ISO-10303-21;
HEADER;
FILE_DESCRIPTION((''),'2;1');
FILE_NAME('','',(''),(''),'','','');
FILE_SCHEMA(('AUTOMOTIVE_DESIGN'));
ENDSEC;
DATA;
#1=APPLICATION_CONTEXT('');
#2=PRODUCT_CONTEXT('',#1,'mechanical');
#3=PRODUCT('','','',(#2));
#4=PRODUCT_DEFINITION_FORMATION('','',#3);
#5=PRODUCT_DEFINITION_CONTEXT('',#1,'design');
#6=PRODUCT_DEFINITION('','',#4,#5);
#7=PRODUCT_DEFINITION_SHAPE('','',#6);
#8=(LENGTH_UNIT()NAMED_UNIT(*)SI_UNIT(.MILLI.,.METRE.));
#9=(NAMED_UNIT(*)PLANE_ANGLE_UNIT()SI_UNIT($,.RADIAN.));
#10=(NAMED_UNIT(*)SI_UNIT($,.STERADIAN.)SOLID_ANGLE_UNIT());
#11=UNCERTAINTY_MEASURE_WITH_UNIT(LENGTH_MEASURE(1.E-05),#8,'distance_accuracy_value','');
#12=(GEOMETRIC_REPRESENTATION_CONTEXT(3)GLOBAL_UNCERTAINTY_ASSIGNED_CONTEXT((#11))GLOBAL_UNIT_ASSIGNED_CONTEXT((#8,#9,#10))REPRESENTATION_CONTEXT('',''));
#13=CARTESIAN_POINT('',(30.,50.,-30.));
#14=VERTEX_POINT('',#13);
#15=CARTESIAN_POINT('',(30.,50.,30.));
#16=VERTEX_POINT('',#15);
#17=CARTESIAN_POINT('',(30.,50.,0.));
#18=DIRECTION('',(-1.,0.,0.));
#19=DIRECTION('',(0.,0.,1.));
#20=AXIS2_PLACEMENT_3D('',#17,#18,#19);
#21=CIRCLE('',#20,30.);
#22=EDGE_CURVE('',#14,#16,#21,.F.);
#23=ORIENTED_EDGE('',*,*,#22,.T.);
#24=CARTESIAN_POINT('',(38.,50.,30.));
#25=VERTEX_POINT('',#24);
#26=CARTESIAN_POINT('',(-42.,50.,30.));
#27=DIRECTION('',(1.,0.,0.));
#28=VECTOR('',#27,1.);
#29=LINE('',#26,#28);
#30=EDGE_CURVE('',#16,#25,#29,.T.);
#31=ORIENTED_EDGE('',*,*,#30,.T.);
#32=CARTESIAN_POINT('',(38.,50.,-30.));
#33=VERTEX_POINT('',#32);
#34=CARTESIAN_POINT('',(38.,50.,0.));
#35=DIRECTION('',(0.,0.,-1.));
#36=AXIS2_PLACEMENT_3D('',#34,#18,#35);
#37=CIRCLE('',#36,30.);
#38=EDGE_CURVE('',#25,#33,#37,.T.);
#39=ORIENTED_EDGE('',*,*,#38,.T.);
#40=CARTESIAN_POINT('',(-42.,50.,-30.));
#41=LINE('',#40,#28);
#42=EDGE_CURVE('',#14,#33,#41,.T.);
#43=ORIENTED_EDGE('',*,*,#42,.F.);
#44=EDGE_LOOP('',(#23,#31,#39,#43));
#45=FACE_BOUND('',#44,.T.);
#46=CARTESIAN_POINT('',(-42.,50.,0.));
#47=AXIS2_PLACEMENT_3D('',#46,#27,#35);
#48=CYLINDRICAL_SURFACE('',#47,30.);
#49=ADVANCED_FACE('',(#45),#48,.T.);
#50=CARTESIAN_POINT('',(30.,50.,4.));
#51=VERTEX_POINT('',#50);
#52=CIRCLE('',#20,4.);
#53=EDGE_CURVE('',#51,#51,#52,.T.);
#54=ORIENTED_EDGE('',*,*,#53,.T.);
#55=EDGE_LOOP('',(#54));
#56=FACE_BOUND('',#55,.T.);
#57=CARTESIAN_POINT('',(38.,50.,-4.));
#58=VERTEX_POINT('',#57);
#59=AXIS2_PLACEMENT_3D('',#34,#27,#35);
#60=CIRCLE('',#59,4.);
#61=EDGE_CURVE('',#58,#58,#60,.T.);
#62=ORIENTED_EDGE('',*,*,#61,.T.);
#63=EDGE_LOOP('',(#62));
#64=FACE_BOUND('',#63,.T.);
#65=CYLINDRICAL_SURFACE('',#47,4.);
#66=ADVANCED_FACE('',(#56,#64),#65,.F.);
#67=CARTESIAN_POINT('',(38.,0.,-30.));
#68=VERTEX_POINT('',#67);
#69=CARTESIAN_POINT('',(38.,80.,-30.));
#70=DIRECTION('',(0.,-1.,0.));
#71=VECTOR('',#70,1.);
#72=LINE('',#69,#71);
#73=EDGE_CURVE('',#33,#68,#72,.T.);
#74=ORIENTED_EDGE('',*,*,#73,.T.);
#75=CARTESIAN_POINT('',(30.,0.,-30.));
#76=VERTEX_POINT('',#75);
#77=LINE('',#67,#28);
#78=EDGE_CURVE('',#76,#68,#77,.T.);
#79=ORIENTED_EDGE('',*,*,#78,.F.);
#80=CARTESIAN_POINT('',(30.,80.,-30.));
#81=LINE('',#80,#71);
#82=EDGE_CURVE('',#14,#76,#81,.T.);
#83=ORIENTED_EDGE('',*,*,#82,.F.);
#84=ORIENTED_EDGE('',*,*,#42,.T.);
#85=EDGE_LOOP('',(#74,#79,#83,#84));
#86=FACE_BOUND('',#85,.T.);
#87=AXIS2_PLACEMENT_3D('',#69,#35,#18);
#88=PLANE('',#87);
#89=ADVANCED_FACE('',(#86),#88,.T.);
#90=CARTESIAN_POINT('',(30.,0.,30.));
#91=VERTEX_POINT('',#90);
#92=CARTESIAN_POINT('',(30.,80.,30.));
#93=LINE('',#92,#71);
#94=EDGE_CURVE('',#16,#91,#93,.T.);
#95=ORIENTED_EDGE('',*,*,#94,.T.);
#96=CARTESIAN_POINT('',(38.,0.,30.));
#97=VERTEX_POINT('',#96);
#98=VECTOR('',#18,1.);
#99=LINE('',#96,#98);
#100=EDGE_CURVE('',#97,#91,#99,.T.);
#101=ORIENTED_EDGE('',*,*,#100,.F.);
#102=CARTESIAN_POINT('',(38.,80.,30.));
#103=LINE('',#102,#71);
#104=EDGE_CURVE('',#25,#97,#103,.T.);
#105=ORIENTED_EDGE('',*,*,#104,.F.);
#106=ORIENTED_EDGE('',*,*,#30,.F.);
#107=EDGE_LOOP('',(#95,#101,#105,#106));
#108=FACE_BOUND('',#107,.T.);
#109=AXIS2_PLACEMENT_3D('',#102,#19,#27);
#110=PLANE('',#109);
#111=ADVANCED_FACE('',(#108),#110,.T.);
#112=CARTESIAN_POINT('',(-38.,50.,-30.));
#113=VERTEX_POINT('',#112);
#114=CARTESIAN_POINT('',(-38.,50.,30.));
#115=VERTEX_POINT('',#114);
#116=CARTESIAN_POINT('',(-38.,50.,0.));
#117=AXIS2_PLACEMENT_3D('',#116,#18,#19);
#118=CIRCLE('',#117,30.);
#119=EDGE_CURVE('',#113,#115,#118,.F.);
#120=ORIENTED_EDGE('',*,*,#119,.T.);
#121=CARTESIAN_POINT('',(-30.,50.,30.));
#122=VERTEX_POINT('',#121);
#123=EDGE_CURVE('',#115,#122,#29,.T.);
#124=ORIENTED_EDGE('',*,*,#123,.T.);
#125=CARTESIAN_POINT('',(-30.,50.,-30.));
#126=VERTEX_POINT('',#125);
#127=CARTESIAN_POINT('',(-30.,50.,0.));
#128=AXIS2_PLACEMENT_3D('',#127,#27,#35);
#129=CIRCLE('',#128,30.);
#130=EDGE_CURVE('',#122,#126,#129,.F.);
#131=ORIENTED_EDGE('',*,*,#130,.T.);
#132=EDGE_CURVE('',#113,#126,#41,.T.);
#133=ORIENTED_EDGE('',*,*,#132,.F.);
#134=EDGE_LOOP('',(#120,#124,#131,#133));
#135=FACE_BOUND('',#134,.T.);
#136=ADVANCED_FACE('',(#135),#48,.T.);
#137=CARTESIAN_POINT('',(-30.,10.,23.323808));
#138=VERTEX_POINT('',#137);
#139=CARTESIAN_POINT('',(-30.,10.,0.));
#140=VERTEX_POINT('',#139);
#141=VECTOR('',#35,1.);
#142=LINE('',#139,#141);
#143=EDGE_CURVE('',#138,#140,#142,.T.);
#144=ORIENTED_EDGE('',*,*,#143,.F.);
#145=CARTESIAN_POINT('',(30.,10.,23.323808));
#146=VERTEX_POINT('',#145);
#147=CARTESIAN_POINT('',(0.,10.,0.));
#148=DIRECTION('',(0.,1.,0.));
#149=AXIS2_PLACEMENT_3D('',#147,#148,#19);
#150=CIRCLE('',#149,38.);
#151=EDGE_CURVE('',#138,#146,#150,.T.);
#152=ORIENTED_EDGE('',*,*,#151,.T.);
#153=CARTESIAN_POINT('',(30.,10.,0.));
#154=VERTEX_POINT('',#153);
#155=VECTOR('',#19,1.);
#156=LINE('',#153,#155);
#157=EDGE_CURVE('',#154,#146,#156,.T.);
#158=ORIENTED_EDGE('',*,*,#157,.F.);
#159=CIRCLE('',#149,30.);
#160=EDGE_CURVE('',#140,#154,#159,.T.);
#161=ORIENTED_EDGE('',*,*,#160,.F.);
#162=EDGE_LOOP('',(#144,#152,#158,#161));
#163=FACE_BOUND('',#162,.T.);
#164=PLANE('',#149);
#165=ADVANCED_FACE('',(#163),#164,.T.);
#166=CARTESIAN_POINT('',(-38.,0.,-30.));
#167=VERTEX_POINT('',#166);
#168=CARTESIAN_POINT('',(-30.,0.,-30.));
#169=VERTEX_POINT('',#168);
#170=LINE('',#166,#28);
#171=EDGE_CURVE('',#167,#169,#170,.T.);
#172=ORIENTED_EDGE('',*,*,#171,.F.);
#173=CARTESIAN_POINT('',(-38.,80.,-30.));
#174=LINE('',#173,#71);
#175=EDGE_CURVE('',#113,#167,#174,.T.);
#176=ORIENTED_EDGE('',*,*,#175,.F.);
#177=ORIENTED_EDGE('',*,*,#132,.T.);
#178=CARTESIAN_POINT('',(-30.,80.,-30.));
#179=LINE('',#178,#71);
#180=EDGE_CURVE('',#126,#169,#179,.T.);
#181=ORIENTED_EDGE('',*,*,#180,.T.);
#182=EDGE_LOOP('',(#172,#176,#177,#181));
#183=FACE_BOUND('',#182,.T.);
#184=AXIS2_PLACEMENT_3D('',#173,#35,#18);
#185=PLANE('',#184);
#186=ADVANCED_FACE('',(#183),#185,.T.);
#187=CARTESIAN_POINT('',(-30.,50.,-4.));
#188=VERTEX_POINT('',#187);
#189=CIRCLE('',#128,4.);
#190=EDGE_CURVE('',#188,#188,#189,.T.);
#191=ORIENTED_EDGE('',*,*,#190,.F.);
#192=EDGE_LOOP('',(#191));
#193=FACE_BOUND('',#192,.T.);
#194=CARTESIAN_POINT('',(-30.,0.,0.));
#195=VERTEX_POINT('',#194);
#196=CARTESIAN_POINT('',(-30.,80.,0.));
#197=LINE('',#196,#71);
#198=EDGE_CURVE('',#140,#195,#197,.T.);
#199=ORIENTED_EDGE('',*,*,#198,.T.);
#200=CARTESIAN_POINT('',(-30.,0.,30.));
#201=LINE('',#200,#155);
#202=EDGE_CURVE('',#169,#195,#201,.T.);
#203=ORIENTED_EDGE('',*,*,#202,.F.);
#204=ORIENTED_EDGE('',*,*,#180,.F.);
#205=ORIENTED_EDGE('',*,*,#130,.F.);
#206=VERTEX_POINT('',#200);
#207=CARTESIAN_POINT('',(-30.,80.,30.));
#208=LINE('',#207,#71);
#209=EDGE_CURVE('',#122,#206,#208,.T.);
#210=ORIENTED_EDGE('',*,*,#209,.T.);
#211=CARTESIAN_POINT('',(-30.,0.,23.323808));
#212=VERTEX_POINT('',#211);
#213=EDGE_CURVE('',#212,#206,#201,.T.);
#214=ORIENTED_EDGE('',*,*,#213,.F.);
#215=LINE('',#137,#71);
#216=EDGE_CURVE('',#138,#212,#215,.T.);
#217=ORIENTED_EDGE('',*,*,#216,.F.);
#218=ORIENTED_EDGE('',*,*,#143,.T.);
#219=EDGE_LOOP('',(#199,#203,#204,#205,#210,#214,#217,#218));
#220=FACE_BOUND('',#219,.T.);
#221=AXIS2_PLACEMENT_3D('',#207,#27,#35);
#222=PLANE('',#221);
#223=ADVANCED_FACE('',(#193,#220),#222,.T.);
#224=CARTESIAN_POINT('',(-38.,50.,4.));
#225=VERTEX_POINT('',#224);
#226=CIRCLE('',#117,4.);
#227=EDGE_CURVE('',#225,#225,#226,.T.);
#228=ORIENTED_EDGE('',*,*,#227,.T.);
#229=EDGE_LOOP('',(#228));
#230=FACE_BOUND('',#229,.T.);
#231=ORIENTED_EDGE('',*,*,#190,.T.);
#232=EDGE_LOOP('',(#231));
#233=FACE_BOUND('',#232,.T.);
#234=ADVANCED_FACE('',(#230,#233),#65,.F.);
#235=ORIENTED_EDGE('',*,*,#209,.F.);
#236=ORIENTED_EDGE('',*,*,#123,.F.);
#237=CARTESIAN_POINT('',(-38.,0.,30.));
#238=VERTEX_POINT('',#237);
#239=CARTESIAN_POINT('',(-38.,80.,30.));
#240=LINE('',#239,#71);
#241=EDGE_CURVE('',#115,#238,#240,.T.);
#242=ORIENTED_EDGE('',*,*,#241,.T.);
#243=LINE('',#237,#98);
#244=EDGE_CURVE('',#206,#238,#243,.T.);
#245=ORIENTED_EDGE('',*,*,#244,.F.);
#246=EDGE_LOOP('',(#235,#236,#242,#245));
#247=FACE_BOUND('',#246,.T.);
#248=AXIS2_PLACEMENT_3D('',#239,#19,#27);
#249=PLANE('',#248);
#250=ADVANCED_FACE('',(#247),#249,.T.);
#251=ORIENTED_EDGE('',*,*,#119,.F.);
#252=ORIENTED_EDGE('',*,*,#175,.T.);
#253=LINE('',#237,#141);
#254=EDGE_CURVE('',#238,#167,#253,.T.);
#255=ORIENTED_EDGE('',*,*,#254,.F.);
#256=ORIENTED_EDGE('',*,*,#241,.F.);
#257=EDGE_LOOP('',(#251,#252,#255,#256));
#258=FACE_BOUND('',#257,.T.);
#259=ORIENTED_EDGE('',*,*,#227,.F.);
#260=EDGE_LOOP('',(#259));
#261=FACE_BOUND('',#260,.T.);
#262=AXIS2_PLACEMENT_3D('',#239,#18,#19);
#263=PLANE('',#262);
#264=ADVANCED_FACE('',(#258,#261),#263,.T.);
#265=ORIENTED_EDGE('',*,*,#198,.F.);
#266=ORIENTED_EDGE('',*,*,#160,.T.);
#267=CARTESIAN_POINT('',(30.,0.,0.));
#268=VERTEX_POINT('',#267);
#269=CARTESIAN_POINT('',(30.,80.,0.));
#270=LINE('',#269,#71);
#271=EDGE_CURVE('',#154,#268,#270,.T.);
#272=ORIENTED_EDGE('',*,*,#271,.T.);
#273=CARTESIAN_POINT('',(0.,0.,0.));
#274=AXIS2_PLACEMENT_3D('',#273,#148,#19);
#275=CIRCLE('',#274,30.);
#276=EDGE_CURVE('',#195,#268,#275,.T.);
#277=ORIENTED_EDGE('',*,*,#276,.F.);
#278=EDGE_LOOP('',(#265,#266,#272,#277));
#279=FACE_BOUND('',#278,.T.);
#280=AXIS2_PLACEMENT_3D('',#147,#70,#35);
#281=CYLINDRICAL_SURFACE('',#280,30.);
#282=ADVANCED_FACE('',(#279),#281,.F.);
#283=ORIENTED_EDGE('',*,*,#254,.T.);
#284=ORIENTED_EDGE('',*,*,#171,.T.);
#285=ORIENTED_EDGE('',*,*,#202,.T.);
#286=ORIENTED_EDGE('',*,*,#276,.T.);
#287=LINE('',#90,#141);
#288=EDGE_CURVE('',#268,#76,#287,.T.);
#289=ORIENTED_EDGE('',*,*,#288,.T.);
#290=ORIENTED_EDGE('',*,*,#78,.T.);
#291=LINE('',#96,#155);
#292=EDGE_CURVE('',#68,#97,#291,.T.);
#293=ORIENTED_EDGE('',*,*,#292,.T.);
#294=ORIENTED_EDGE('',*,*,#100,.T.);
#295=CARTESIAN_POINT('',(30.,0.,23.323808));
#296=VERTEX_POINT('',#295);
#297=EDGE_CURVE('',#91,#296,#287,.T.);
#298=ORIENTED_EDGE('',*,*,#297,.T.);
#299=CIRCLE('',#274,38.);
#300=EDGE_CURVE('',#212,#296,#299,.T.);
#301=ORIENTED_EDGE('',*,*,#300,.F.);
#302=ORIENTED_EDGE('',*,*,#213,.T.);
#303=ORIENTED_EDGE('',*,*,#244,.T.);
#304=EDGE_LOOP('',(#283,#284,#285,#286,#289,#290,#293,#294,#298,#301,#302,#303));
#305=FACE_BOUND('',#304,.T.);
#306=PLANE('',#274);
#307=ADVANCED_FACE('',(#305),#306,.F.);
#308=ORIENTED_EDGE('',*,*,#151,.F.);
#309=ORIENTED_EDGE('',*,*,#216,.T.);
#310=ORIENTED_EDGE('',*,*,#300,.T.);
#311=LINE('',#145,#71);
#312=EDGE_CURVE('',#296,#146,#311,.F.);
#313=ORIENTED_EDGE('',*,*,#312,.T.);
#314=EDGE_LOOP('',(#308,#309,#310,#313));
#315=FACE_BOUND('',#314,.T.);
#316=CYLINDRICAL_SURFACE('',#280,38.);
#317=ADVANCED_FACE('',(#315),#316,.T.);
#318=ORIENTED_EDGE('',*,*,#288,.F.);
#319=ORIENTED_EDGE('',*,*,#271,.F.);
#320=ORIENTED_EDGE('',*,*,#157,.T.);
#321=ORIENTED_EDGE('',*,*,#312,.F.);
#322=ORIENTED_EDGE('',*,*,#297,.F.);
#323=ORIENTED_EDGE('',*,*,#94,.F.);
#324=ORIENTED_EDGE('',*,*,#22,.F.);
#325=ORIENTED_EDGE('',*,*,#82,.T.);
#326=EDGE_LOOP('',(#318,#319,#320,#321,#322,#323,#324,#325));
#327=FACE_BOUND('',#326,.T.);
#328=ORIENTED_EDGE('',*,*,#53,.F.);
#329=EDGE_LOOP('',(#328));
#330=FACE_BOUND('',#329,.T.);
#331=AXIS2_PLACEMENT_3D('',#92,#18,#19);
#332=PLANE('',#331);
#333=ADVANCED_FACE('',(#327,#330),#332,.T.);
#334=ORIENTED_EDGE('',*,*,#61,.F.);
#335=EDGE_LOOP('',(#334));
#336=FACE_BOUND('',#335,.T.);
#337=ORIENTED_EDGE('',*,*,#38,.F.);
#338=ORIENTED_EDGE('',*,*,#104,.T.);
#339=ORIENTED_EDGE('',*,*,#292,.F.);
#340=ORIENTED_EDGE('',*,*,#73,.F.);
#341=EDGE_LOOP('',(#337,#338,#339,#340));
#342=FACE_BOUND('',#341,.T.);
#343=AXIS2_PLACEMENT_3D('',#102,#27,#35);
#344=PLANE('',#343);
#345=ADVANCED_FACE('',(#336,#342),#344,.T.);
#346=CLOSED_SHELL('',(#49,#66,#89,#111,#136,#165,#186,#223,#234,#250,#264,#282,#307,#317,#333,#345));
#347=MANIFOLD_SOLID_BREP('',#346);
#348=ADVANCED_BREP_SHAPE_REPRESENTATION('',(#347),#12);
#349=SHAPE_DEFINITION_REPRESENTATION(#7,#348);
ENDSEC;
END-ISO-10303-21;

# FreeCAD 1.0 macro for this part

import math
import FreeCAD as App
import Part
import Sketcher
Q = App.Units.Quantity

doc = App.newDocument("Part")
body = doc.addObject("PartDesign::Body", "Body")

# Sketch on XZ plane
sketch1 = body.newObject("Sketcher::SketchObject", "Sketch")
sketch1.AttachmentSupport = (doc.getObject("XZ_Plane"), [""])
sketch1.MapMode = "FlatFace"
sketch1.addGeometry(Part.Circle(App.Vector(0, 0, 0), App.Vector(0, 0, 1), 38), False)
sketch1.addGeometry(Part.Circle(App.Vector(0, 0, 0), App.Vector(0, 0, 1), 30), False)
sketch1.addConstraint(Sketcher.Constraint("Coincident", 0, 3, -1, 1))
sketch1.addConstraint(Sketcher.Constraint("Coincident", 1, 3, -1, 1))
sketch1.addConstraint(Sketcher.Constraint("Diameter", 0, Q("76 mm")))
sketch1.addConstraint(Sketcher.Constraint("Diameter", 1, Q("60 mm")))
pad1 = body.newObject("PartDesign::Pad", "Pad")
pad1.Profile = sketch1
pad1.Length = 10
pad1.Reversed = True

# Sketch on XZ plane
sketch2 = body.newObject("Sketcher::SketchObject", "Sketch001")
sketch2.AttachmentSupport = (doc.getObject("XZ_Plane"), [""])
sketch2.MapMode = "FlatFace"
sketch2.addGeometry(Part.LineSegment(App.Vector(-38, 30, 0), App.Vector(-38, -30, 0)), False)
sketch2.addGeometry(Part.LineSegment(App.Vector(-38, -30, 0), App.Vector(-30, -30, 0)), False)
sketch2.addGeometry(Part.LineSegment(App.Vector(-30, -30, 0), App.Vector(-30, 30, 0)), False)
sketch2.addGeometry(Part.LineSegment(App.Vector(-30, 30, 0), App.Vector(-38, 30, 0)), False)
sketch2.addGeometry(Part.LineSegment(App.Vector(30, 30, 0), App.Vector(30, -30, 0)), False)
sketch2.addGeometry(Part.LineSegment(App.Vector(30, -30, 0), App.Vector(38, -30, 0)), False)
sketch2.addGeometry(Part.LineSegment(App.Vector(38, -30, 0), App.Vector(38, 30, 0)), False)
sketch2.addGeometry(Part.LineSegment(App.Vector(38, 30, 0), App.Vector(30, 30, 0)), False)
sketch2.addConstraint(Sketcher.Constraint("Coincident", 0, 2, 1, 1))
sketch2.addConstraint(Sketcher.Constraint("Coincident", 1, 2, 2, 1))
sketch2.addConstraint(Sketcher.Constraint("Coincident", 2, 2, 3, 1))
sketch2.addConstraint(Sketcher.Constraint("Coincident", 3, 2, 0, 1))
sketch2.addConstraint(Sketcher.Constraint("Coincident", 4, 2, 5, 1))
sketch2.addConstraint(Sketcher.Constraint("Coincident", 5, 2, 6, 1))
sketch2.addConstraint(Sketcher.Constraint("Coincident", 6, 2, 7, 1))
sketch2.addConstraint(Sketcher.Constraint("Coincident", 7, 2, 4, 1))
sketch2.addConstraint(Sketcher.Constraint("Vertical", 0))
sketch2.addConstraint(Sketcher.Constraint("Horizontal", 1))
sketch2.addConstraint(Sketcher.Constraint("Vertical", 2))
sketch2.addConstraint(Sketcher.Constraint("Horizontal", 3))
sketch2.addConstraint(Sketcher.Constraint("Vertical", 4))
sketch2.addConstraint(Sketcher.Constraint("Horizontal", 5))
sketch2.addConstraint(Sketcher.Constraint("Vertical", 6))
sketch2.addConstraint(Sketcher.Constraint("Horizontal", 7))
sketch2.addConstraint(Sketcher.Constraint("Symmetric", 2, 2, 4, 2, -1, 1))
sketch2.addConstraint(Sketcher.Constraint("Symmetric", 0, 2, 6, 2, -1, 1))
sketch2.addConstraint(Sketcher.Constraint("Horizontal", 1, 2, 4, 2))
sketch2.addConstraint(Sketcher.Constraint("DistanceX", 1, 1, 1, 2, Q("8 mm")))
sketch2.addConstraint(Sketcher.Constraint("DistanceY", 0, 2, 0, 1, Q("60 mm")))
sketch2.addConstraint(Sketcher.Constraint("DistanceX", 0, 2, -1, 1, Q("38 mm")))
pad2 = body.newObject("PartDesign::Pad", "Pad001")
pad2.Profile = sketch2
pad2.Length = 80
pad2.Reversed = True

# Sketch on YZ plane
sketch3 = body.newObject("Sketcher::SketchObject", "Sketch002")
sketch3.AttachmentSupport = (doc.getObject("YZ_Plane"), [""])
sketch3.MapMode = "FlatFace"
sketch3.AttachmentOffset = App.Placement(App.Vector(0, 0, 38), App.Rotation())
sketch3.addGeometry(Part.Circle(App.Vector(50, 0, 0), App.Vector(0, 0, 1), 4), False)
sketch3.addGeometry(Part.LineSegment(App.Vector(88, 30, 0), App.Vector(50, 30, 0)), False)
sketch3.addGeometry(Part.ArcOfCircle(Part.Circle(App.Vector(50, 0, 0), App.Vector(0, 0, 1), 30), math.radians(-90), math.radians(90)), False)
sketch3.addGeometry(Part.LineSegment(App.Vector(50, -30, 0), App.Vector(88, -30, 0)), False)
sketch3.addGeometry(Part.LineSegment(App.Vector(88, -30, 0), App.Vector(88, 30, 0)), False)
sketch3.addConstraint(Sketcher.Constraint("Tangent", 1, 2, 2, 2))
sketch3.addConstraint(Sketcher.Constraint("Tangent", 2, 1, 3, 1))
sketch3.addConstraint(Sketcher.Constraint("Coincident", 3, 2, 4, 1))
sketch3.addConstraint(Sketcher.Constraint("Coincident", 4, 2, 1, 1))
sketch3.addConstraint(Sketcher.Constraint("Horizontal", 1))
sketch3.addConstraint(Sketcher.Constraint("Horizontal", 3))
sketch3.addConstraint(Sketcher.Constraint("Vertical", 4))
sketch3.addConstraint(Sketcher.Constraint("Coincident", 2, 3, 0, 3))
sketch3.addConstraint(Sketcher.Constraint("PointOnObject", 0, 3, -1))
sketch3.addConstraint(Sketcher.Constraint("Diameter", 0, Q("8 mm")))
sketch3.addConstraint(Sketcher.Constraint("Radius", 2, Q("30 mm")))
sketch3.addConstraint(Sketcher.Constraint("DistanceX", 1, 2, 1, 1, Q("38 mm")))
sketch3.addConstraint(Sketcher.Constraint("DistanceX", -1, 1, 0, 3, Q("50 mm")))
pocket1 = body.newObject("PartDesign::Pocket", "Pocket")
pocket1.Profile = sketch3
pocket1.Length = 80

# Sketch on XZ plane
sketch4 = body.newObject("Sketcher::SketchObject", "Sketch003")
sketch4.AttachmentSupport = (doc.getObject("XZ_Plane"), [""])
sketch4.MapMode = "FlatFace"
sketch4.addGeometry(Part.LineSegment(App.Vector(-30, 0, 0), App.Vector(-30, -41, 0)), False)
sketch4.addGeometry(Part.LineSegment(App.Vector(-30, -41, 0), App.Vector(30, -41, 0)), False)
sketch4.addGeometry(Part.LineSegment(App.Vector(30, -41, 0), App.Vector(30, 0, 0)), False)
sketch4.addGeometry(Part.LineSegment(App.Vector(30, 0, 0), App.Vector(-30, 0, 0)), False)
sketch4.addConstraint(Sketcher.Constraint("Coincident", 0, 2, 1, 1))
sketch4.addConstraint(Sketcher.Constraint("Coincident", 1, 2, 2, 1))
sketch4.addConstraint(Sketcher.Constraint("Coincident", 2, 2, 3, 1))
sketch4.addConstraint(Sketcher.Constraint("Coincident", 3, 2, 0, 1))
sketch4.addConstraint(Sketcher.Constraint("Vertical", 0))
sketch4.addConstraint(Sketcher.Constraint("Horizontal", 1))
sketch4.addConstraint(Sketcher.Constraint("Vertical", 2))
sketch4.addConstraint(Sketcher.Constraint("Horizontal", 3))
sketch4.addConstraint(Sketcher.Constraint("Symmetric", 2, 2, 3, 2, -1, 1))
sketch4.addConstraint(Sketcher.Constraint("DistanceX", 1, 1, 1, 2, Q("60 mm")))
sketch4.addConstraint(Sketcher.Constraint("DistanceY", 0, 2, 0, 1, Q("40.67812 mm")))
pocket2 = body.newObject("PartDesign::Pocket", "Pocket001")
pocket2.Profile = sketch4
pocket2.Type = "ThroughAll"

doc.recompute()
